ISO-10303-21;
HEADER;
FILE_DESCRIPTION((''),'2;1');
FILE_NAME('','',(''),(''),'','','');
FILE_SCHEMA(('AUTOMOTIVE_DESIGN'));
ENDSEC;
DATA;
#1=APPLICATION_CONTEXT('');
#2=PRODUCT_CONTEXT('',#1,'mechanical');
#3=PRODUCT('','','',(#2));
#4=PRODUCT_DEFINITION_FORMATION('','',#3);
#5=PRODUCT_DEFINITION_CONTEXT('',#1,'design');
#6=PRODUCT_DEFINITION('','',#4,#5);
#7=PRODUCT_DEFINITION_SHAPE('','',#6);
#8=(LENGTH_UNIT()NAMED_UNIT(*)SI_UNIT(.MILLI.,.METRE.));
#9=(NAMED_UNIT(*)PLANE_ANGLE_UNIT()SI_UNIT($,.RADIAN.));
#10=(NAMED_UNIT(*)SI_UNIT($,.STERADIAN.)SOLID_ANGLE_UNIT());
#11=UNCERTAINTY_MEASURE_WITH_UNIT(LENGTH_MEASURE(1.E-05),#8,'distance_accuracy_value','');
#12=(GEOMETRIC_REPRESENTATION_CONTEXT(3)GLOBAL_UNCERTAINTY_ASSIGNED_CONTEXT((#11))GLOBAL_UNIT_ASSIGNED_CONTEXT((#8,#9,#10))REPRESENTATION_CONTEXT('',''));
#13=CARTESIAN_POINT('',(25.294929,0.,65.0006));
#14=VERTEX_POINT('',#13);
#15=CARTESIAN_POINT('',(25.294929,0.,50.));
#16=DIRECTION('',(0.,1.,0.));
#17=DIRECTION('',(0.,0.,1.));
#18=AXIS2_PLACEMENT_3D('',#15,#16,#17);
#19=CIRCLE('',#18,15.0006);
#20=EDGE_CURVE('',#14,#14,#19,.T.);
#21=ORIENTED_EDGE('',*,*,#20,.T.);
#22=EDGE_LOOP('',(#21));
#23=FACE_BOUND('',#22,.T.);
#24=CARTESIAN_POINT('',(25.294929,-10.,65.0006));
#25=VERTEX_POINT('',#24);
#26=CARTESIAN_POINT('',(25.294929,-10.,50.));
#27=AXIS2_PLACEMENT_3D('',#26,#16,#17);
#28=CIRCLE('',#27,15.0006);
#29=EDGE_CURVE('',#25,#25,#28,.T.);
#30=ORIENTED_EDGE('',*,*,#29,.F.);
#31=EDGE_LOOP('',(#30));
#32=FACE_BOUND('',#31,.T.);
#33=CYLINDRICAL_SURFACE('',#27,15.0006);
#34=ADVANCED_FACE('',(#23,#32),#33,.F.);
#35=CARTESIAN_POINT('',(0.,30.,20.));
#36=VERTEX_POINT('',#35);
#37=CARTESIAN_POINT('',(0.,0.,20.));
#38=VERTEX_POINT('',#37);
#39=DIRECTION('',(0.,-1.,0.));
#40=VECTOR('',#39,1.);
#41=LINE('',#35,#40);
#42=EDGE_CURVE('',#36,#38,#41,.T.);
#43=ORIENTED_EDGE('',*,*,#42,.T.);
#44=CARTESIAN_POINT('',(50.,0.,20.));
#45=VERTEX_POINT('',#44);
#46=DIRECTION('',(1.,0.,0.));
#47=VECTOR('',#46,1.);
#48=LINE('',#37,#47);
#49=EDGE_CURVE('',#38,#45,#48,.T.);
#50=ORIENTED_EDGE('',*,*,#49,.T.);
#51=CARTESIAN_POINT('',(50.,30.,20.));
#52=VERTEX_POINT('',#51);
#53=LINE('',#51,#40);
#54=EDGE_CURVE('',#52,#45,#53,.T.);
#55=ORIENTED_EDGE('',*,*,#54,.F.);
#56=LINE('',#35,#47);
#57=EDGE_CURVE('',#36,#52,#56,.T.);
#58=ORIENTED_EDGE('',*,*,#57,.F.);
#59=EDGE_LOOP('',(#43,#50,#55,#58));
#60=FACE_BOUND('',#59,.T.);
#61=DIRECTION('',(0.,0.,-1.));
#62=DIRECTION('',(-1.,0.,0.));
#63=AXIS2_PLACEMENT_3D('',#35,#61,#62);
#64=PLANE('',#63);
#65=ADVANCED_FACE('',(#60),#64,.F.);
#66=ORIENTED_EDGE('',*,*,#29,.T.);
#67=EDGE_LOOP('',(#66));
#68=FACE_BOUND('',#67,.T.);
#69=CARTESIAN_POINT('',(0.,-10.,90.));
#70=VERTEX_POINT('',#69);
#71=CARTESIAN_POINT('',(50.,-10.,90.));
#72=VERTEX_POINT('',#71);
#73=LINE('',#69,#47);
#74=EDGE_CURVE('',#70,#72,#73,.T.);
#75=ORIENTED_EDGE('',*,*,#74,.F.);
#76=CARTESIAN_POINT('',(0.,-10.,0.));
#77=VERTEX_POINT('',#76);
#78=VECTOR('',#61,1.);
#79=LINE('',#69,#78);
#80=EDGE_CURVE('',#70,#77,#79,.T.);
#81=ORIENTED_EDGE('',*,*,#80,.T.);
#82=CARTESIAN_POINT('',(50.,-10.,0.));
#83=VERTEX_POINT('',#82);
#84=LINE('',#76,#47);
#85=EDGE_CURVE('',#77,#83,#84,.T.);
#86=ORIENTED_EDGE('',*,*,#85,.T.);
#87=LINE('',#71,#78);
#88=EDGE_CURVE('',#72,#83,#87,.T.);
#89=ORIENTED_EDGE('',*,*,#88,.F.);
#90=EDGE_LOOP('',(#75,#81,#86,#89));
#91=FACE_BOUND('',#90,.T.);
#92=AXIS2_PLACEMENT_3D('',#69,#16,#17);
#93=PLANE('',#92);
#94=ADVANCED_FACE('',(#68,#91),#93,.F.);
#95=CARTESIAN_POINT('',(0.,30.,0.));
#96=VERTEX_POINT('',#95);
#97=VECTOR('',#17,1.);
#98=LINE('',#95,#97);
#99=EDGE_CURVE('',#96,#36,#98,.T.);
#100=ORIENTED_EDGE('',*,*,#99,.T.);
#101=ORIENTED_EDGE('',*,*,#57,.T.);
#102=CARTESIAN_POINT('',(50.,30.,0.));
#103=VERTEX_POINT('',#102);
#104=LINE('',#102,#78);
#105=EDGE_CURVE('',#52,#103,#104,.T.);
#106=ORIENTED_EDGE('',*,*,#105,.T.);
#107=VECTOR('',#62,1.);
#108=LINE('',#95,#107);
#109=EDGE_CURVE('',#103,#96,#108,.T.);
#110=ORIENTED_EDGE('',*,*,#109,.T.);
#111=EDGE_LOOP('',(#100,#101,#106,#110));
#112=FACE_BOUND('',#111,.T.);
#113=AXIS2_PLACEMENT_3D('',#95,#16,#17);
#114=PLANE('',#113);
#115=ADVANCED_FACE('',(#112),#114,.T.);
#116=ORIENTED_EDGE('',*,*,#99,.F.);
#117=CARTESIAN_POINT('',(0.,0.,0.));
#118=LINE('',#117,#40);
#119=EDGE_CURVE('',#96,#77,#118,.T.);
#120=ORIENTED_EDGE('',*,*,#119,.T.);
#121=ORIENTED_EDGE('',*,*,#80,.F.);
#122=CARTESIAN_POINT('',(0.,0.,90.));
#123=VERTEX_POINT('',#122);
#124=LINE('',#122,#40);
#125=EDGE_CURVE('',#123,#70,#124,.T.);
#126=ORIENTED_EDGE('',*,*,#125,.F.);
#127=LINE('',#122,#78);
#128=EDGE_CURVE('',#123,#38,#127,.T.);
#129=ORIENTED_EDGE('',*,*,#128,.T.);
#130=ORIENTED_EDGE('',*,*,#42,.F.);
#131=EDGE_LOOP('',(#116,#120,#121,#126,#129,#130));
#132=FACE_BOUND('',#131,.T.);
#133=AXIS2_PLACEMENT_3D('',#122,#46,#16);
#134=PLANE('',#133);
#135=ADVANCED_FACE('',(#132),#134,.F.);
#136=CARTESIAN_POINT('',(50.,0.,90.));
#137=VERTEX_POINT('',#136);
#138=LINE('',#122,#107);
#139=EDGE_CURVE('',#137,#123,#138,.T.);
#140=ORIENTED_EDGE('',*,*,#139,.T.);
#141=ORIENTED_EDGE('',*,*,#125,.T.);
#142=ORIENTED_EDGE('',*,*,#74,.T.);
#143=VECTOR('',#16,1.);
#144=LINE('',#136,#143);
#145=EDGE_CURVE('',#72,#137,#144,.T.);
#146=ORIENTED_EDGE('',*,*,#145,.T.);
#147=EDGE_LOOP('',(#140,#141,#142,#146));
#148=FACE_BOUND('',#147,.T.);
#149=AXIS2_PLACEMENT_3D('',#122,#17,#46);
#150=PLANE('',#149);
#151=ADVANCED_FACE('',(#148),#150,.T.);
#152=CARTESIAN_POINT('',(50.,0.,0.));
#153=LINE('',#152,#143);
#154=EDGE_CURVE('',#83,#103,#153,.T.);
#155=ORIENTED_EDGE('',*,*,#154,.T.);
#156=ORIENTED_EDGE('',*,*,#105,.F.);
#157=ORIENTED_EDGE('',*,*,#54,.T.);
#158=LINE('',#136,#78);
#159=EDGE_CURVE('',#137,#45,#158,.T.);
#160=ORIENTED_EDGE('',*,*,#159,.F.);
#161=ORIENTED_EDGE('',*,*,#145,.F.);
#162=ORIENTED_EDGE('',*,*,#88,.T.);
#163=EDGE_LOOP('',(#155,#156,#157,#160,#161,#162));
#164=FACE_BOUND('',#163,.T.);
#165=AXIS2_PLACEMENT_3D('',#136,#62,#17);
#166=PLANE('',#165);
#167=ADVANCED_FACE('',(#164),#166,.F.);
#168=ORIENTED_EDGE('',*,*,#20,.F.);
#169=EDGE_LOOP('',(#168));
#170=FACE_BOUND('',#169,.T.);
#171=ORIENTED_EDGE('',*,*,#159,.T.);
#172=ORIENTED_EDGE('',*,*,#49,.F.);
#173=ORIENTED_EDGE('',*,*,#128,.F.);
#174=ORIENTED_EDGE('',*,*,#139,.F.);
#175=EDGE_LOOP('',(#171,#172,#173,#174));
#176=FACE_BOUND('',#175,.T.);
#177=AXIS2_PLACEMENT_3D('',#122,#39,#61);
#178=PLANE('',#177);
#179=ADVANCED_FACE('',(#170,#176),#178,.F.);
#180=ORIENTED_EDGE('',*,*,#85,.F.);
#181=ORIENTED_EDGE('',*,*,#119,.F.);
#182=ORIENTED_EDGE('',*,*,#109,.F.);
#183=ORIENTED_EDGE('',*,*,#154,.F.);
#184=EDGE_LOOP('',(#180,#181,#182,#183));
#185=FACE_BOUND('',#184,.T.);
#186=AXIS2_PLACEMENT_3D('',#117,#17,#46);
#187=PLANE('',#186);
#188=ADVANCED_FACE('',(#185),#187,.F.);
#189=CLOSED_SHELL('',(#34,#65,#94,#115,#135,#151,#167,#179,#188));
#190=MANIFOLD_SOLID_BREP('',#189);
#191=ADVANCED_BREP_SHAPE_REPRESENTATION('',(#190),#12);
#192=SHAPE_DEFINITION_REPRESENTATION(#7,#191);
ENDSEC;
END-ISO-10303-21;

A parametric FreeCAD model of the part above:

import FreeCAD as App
import Part
import Sketcher

V = App.Vector

doc = App.newDocument("Part")
body = doc.addObject("PartDesign::Body", "Body")

# Sketch on XY plane
sketch1 = body.newObject("Sketcher::SketchObject", "Sketch")
sketch1.AttachmentSupport = (doc.getObject("XY_Plane"), [""])
sketch1.MapMode = "FlatFace"
sketch1.addGeometry([
    Part.LineSegment(V(0, 0, 0), V(0, -10, 0)),
    Part.LineSegment(V(0, -10, 0), V(50, -10, 0)),
    Part.LineSegment(V(50, -10, 0), V(50, 0, 0)),
    Part.LineSegment(V(50, 0, 0), V(0, 0, 0)),
], False)
sketch1.addConstraint([
    Sketcher.Constraint("Coincident", 0, 2, 1, 1),
    Sketcher.Constraint("Coincident", 1, 2, 2, 1),
    Sketcher.Constraint("Coincident", 2, 2, 3, 1),
    Sketcher.Constraint("Coincident", 3, 2, 0, 1),
    Sketcher.Constraint("Vertical", 0),
    Sketcher.Constraint("Horizontal", 1),
    Sketcher.Constraint("Vertical", 2),
    Sketcher.Constraint("Horizontal", 3),
    Sketcher.Constraint("Coincident", 3, 2, -1, 1),
    Sketcher.Constraint("DistanceX", 1, 1, 1, 2, 50.0),
    Sketcher.Constraint("DistanceY", 0, 2, 0, 1, 10.0),
])
pad1 = body.newObject("PartDesign::Pad", "Pad")
pad1.Profile = sketch1
pad1.Length = 90

# Sketch on XZ plane
sketch2 = body.newObject("Sketcher::SketchObject", "Sketch001")
sketch2.AttachmentSupport = (doc.getObject("XZ_Plane"), [""])
sketch2.MapMode = "FlatFace"
sketch2.addGeometry([
    Part.LineSegment(V(0, 0, 0), V(0, 20, 0)),
    Part.LineSegment(V(0, 20, 0), V(50, 20, 0)),
    Part.LineSegment(V(50, 20, 0), V(50, 0, 0)),
    Part.LineSegment(V(50, 0, 0), V(0, 0, 0)),
], False)
sketch2.addConstraint([
    Sketcher.Constraint("Coincident", 0, 2, 1, 1),
    Sketcher.Constraint("Coincident", 1, 2, 2, 1),
    Sketcher.Constraint("Coincident", 2, 2, 3, 1),
    Sketcher.Constraint("Coincident", 3, 2, 0, 1),
    Sketcher.Constraint("Vertical", 0),
    Sketcher.Constraint("Horizontal", 1),
    Sketcher.Constraint("Vertical", 2),
    Sketcher.Constraint("Horizontal", 3),
    Sketcher.Constraint("Coincident", 3, 2, -1, 1),
    Sketcher.Constraint("DistanceX", 1, 1, 1, 2, 50.0),
    Sketcher.Constraint("DistanceY", 0, 1, 0, 2, 20.0),
])
pad2 = body.newObject("PartDesign::Pad", "Pad001")
pad2.Profile = sketch2
pad2.Length = 30
pad2.Reversed = True

# Sketch on XZ plane
sketch3 = body.newObject("Sketcher::SketchObject", "Sketch002")
sketch3.AttachmentSupport = (doc.getObject("XZ_Plane"), [""])
sketch3.MapMode = "FlatFace"
sketch3.addGeometry(Part.Circle(V(25.294929, 50, 0), V(0, 0, 1), 15.0006), False)
sketch3.addConstraint([
    Sketcher.Constraint("DistanceY", -1, 1, 0, 3, 50.0),
    Sketcher.Constraint("Diameter", 0, 30.0012),
    Sketcher.Constraint("DistanceX", -1, 1, 0, 3, 25.294929),
])
pocket1 = body.newObject("PartDesign::Pocket", "Pocket")
pocket1.Profile = sketch3
pocket1.Type = "ThroughAll"
pocket1.Reversed = True

doc.recompute()
